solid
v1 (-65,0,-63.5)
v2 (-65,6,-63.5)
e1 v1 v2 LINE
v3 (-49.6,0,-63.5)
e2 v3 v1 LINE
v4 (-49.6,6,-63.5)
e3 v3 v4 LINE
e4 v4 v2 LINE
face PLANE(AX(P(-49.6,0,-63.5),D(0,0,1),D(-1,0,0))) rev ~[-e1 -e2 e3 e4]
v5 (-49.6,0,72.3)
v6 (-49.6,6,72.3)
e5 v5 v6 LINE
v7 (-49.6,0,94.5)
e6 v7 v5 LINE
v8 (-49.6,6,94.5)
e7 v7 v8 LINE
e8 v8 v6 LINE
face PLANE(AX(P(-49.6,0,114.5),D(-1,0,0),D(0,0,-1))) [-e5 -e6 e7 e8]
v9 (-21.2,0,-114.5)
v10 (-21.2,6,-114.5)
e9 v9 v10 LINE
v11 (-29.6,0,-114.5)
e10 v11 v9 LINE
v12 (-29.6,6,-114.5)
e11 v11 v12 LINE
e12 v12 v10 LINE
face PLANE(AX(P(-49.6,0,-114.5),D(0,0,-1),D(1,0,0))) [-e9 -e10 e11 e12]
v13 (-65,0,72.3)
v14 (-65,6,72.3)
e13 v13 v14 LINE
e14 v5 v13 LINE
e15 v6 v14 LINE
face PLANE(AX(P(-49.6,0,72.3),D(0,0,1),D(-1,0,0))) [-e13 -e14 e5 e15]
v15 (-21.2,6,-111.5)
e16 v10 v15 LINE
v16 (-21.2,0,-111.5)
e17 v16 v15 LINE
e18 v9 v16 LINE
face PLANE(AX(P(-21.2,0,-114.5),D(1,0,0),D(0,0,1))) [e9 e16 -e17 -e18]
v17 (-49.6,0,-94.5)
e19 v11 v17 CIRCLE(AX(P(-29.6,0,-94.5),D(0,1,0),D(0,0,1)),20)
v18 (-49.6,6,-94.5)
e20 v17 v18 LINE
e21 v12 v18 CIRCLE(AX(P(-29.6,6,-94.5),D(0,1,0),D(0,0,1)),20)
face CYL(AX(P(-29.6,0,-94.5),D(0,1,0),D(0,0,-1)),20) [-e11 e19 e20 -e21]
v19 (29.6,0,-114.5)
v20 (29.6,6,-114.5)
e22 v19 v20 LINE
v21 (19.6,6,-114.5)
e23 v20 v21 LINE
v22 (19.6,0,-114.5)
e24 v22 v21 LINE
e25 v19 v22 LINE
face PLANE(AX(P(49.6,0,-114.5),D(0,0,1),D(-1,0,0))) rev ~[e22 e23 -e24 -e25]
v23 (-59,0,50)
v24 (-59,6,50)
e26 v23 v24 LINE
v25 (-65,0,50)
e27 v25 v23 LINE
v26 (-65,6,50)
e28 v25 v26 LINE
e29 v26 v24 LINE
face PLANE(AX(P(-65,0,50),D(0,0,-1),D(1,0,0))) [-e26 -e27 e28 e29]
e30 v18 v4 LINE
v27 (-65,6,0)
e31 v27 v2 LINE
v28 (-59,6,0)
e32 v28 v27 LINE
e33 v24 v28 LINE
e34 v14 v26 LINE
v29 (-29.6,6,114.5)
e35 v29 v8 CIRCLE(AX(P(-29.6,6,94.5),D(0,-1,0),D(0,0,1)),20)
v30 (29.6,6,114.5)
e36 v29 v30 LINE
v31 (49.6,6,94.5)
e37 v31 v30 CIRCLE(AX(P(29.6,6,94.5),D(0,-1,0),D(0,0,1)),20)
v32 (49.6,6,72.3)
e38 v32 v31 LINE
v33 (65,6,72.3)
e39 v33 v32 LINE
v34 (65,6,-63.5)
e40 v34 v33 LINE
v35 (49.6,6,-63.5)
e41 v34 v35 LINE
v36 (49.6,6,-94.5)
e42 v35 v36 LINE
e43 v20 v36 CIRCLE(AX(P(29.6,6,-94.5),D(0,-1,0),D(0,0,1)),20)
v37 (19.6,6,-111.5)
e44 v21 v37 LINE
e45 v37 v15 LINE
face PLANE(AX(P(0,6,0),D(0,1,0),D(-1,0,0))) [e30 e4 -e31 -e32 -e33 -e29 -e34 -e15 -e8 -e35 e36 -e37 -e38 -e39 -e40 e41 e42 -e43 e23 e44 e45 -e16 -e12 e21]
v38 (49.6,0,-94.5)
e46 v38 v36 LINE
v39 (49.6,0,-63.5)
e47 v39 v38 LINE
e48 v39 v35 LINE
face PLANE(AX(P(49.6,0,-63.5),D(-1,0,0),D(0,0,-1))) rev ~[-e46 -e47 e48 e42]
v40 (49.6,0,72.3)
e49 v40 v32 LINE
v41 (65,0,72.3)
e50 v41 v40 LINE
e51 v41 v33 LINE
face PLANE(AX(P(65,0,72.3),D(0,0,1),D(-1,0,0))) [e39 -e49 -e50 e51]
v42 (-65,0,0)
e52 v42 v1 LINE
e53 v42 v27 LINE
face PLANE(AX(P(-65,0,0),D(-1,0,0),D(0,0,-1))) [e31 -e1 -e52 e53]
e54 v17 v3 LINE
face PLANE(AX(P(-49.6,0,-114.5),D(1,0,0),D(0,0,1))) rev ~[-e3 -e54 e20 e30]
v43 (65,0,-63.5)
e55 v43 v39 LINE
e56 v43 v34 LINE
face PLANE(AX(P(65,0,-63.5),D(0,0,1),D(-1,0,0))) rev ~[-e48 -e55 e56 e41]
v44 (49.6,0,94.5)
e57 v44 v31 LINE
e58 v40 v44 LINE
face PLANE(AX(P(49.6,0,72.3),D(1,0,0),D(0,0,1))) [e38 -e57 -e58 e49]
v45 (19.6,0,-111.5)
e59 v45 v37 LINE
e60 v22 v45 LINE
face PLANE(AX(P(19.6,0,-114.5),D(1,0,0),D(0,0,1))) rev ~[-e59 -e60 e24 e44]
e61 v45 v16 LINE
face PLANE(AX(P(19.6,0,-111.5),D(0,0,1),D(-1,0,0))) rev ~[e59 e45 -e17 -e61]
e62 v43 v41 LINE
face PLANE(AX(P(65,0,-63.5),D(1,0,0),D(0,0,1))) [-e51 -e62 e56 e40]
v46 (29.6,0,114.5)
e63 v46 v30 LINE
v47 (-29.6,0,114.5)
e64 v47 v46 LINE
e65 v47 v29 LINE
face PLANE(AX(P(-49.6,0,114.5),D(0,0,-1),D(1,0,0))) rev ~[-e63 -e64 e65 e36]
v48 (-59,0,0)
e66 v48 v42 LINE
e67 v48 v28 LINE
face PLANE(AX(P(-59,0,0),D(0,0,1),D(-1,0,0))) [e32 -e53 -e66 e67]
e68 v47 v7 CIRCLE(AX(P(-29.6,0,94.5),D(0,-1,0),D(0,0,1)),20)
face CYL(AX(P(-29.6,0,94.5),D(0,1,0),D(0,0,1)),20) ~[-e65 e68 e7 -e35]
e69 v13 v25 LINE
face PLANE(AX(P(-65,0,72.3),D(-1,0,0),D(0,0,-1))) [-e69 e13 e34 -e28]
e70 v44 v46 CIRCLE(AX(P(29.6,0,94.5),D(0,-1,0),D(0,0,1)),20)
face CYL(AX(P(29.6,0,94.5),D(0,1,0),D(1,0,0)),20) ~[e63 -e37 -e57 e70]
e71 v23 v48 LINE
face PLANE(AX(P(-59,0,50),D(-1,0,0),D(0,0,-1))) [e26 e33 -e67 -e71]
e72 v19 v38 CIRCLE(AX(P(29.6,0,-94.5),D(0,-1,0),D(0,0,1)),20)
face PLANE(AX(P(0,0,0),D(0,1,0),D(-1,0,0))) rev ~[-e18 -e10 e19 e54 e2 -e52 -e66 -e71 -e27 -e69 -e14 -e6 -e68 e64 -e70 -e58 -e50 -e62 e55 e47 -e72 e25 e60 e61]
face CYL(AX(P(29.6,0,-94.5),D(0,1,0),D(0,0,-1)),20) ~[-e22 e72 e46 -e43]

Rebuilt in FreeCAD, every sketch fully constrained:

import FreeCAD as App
import Part
import Sketcher
from FreeCAD import Vector


def edges_at(feature, points):
    """Names of the edges that pass closest to the given points."""
    edges = feature.Shape.Edges
    near = lambda p: min(range(len(edges)), key=lambda i: edges[i].distToShape(Part.Vertex(*p))[0])
    return sorted({f"Edge{near(p) + 1}" for p in points})

doc = App.newDocument("Part")
body = doc.addObject("PartDesign::Body", "Body")

sketch1 = doc.addObject("Sketcher::SketchObject", "Sketch")
body.addObject(sketch1)
sketch1.AttachmentSupport = (doc.XZ_Plane, [""])
sketch1.MapMode = "FlatFace"
sketch1.addGeometry(Part.LineSegment(Vector(-21.2, -114.5, 0), Vector(-49.6, -114.5, 0)), False)
sketch1.addGeometry(Part.LineSegment(Vector(-49.6, -114.5, 0), Vector(-49.6, -63.5, 0)), False)
sketch1.addGeometry(Part.LineSegment(Vector(-49.6, -63.5, 0), Vector(-65, -63.5, 0)), False)
sketch1.addGeometry(Part.LineSegment(Vector(-65, -63.5, 0), Vector(-65, 0, 0)), False)
sketch1.addGeometry(Part.LineSegment(Vector(-65, 0, 0), Vector(-59, 0, 0)), False)
sketch1.addGeometry(Part.LineSegment(Vector(-59, 0, 0), Vector(-59, 50, 0)), False)
sketch1.addGeometry(Part.LineSegment(Vector(-59, 50, 0), Vector(-65, 50, 0)), False)
sketch1.addGeometry(Part.LineSegment(Vector(-65, 50, 0), Vector(-65, 72.3, 0)), False)
sketch1.addGeometry(Part.LineSegment(Vector(-65, 72.3, 0), Vector(-49.6, 72.3, 0)), False)
sketch1.addGeometry(Part.LineSegment(Vector(-49.6, 72.3, 0), Vector(-49.6, 114.5, 0)), False)
sketch1.addGeometry(Part.LineSegment(Vector(-49.6, 114.5, 0), Vector(49.6, 114.5, 0)), False)
sketch1.addGeometry(Part.LineSegment(Vector(49.6, 114.5, 0), Vector(49.6, 72.3, 0)), False)
sketch1.addGeometry(Part.LineSegment(Vector(49.6, 72.3, 0), Vector(65, 72.3, 0)), False)
sketch1.addGeometry(Part.LineSegment(Vector(65, 72.3, 0), Vector(65, -63.5, 0)), False)
sketch1.addGeometry(Part.LineSegment(Vector(65, -63.5, 0), Vector(49.6, -63.5, 0)), False)
sketch1.addGeometry(Part.LineSegment(Vector(49.6, -63.5, 0), Vector(49.6, -114.5, 0)), False)
sketch1.addGeometry(Part.LineSegment(Vector(49.6, -114.5, 0), Vector(19.6, -114.5, 0)), False)
sketch1.addGeometry(Part.LineSegment(Vector(19.6, -114.5, 0), Vector(19.6, -111.5, 0)), False)
sketch1.addGeometry(Part.LineSegment(Vector(19.6, -111.5, 0), Vector(-21.2, -111.5, 0)), False)
sketch1.addGeometry(Part.LineSegment(Vector(-21.2, -111.5, 0), Vector(-21.2, -114.5, 0)), False)
sketch1.addConstraint(Sketcher.Constraint("Coincident", 0, 2, 1, 1))
sketch1.addConstraint(Sketcher.Constraint("Coincident", 1, 2, 2, 1))
sketch1.addConstraint(Sketcher.Constraint("Coincident", 2, 2, 3, 1))
sketch1.addConstraint(Sketcher.Constraint("Coincident", 3, 2, 4, 1))
sketch1.addConstraint(Sketcher.Constraint("Coincident", 4, 2, 5, 1))
sketch1.addConstraint(Sketcher.Constraint("Coincident", 5, 2, 6, 1))
sketch1.addConstraint(Sketcher.Constraint("Coincident", 6, 2, 7, 1))
sketch1.addConstraint(Sketcher.Constraint("Coincident", 7, 2, 8, 1))
sketch1.addConstraint(Sketcher.Constraint("Coincident", 8, 2, 9, 1))
sketch1.addConstraint(Sketcher.Constraint("Coincident", 9, 2, 10, 1))
sketch1.addConstraint(Sketcher.Constraint("Coincident", 10, 2, 11, 1))
sketch1.addConstraint(Sketcher.Constraint("Coincident", 11, 2, 12, 1))
sketch1.addConstraint(Sketcher.Constraint("Coincident", 12, 2, 13, 1))
sketch1.addConstraint(Sketcher.Constraint("Coincident", 13, 2, 14, 1))
sketch1.addConstraint(Sketcher.Constraint("Coincident", 14, 2, 15, 1))
sketch1.addConstraint(Sketcher.Constraint("Coincident", 15, 2, 16, 1))
sketch1.addConstraint(Sketcher.Constraint("Coincident", 16, 2, 17, 1))
sketch1.addConstraint(Sketcher.Constraint("Coincident", 17, 2, 18, 1))
sketch1.addConstraint(Sketcher.Constraint("Coincident", 18, 2, 19, 1))
sketch1.addConstraint(Sketcher.Constraint("Coincident", 19, 2, 0, 1))
sketch1.addConstraint(Sketcher.Constraint("Horizontal", 0))
sketch1.addConstraint(Sketcher.Constraint("Vertical", 1))
sketch1.addConstraint(Sketcher.Constraint("Horizontal", 2))
sketch1.addConstraint(Sketcher.Constraint("Vertical", 3))
sketch1.addConstraint(Sketcher.Constraint("Horizontal", 4))
sketch1.addConstraint(Sketcher.Constraint("Vertical", 5))
sketch1.addConstraint(Sketcher.Constraint("Horizontal", 6))
sketch1.addConstraint(Sketcher.Constraint("Vertical", 7))
sketch1.addConstraint(Sketcher.Constraint("Horizontal", 8))
sketch1.addConstraint(Sketcher.Constraint("Vertical", 9))
sketch1.addConstraint(Sketcher.Constraint("Horizontal", 10))
sketch1.addConstraint(Sketcher.Constraint("Vertical", 11))
sketch1.addConstraint(Sketcher.Constraint("Horizontal", 12))
sketch1.addConstraint(Sketcher.Constraint("Vertical", 13))
sketch1.addConstraint(Sketcher.Constraint("Horizontal", 14))
sketch1.addConstraint(Sketcher.Constraint("Vertical", 15))
sketch1.addConstraint(Sketcher.Constraint("Horizontal", 16))
sketch1.addConstraint(Sketcher.Constraint("Vertical", 17))
sketch1.addConstraint(Sketcher.Constraint("Horizontal", 18))
sketch1.addConstraint(Sketcher.Constraint("Vertical", 19))
sketch1.addConstraint(Sketcher.Constraint("Symmetric", 0, 2, 10, 2, -1, 1))
sketch1.addConstraint(Sketcher.Constraint("Symmetric", 9, 2, 15, 2, -1, 1))
sketch1.addConstraint(Sketcher.Constraint("Symmetric", 8, 2, 11, 2, -2))
sketch1.addConstraint(Sketcher.Constraint("Symmetric", 2, 2, 13, 2, -2))
sketch1.addConstraint(Sketcher.Constraint("PointOnObject", 3, 2, -1))
sketch1.addConstraint(Sketcher.Constraint("Vertical", 3, 2, 6, 2))
sketch1.addConstraint(Sketcher.Constraint("DistanceX", 4, 1, 4, 2, 6.0))
sketch1.addConstraint(Sketcher.Constraint("DistanceX", 16, 2, 16, 1, 30.0))
sketch1.addConstraint(Sketcher.Constraint("DistanceY", 1, 1, 1, 2, 51.0))
sketch1.addConstraint(Sketcher.Constraint("DistanceY", 5, 1, 5, 2, 50.0))
sketch1.addConstraint(Sketcher.Constraint("DistanceY", 17, 1, 17, 2, 3.0))
sketch1.addConstraint(Sketcher.Constraint("DistanceX", 0, 2, 0, 1, 28.4))
sketch1.addConstraint(Sketcher.Constraint("DistanceX", 2, 2, 2, 1, 15.4))
sketch1.addConstraint(Sketcher.Constraint("DistanceX", 18, 2, 18, 1, 40.8))
sketch1.addConstraint(Sketcher.Constraint("DistanceY", 7, 1, 7, 2, 22.3))
sketch1.addConstraint(Sketcher.Constraint("DistanceY", 9, 1, 9, 2, 42.2))
pad1 = doc.addObject("PartDesign::Pad", "Pad")
body.addObject(pad1)
pad1.Profile = sketch1
pad1.Length = 6
pad1.Reversed = True
doc.recompute()

fillet = doc.addObject("PartDesign::Fillet", "Fillet")
body.addObject(fillet)
fillet.Base = (pad1, edges_at(pad1, [
    (49.6, 3, -114.5),
    (-49.6, 3, -114.5),
    (49.6, 3, 114.5),
    (-49.6, 3, 114.5),
]))
fillet.Radius = 20

doc.recompute()
